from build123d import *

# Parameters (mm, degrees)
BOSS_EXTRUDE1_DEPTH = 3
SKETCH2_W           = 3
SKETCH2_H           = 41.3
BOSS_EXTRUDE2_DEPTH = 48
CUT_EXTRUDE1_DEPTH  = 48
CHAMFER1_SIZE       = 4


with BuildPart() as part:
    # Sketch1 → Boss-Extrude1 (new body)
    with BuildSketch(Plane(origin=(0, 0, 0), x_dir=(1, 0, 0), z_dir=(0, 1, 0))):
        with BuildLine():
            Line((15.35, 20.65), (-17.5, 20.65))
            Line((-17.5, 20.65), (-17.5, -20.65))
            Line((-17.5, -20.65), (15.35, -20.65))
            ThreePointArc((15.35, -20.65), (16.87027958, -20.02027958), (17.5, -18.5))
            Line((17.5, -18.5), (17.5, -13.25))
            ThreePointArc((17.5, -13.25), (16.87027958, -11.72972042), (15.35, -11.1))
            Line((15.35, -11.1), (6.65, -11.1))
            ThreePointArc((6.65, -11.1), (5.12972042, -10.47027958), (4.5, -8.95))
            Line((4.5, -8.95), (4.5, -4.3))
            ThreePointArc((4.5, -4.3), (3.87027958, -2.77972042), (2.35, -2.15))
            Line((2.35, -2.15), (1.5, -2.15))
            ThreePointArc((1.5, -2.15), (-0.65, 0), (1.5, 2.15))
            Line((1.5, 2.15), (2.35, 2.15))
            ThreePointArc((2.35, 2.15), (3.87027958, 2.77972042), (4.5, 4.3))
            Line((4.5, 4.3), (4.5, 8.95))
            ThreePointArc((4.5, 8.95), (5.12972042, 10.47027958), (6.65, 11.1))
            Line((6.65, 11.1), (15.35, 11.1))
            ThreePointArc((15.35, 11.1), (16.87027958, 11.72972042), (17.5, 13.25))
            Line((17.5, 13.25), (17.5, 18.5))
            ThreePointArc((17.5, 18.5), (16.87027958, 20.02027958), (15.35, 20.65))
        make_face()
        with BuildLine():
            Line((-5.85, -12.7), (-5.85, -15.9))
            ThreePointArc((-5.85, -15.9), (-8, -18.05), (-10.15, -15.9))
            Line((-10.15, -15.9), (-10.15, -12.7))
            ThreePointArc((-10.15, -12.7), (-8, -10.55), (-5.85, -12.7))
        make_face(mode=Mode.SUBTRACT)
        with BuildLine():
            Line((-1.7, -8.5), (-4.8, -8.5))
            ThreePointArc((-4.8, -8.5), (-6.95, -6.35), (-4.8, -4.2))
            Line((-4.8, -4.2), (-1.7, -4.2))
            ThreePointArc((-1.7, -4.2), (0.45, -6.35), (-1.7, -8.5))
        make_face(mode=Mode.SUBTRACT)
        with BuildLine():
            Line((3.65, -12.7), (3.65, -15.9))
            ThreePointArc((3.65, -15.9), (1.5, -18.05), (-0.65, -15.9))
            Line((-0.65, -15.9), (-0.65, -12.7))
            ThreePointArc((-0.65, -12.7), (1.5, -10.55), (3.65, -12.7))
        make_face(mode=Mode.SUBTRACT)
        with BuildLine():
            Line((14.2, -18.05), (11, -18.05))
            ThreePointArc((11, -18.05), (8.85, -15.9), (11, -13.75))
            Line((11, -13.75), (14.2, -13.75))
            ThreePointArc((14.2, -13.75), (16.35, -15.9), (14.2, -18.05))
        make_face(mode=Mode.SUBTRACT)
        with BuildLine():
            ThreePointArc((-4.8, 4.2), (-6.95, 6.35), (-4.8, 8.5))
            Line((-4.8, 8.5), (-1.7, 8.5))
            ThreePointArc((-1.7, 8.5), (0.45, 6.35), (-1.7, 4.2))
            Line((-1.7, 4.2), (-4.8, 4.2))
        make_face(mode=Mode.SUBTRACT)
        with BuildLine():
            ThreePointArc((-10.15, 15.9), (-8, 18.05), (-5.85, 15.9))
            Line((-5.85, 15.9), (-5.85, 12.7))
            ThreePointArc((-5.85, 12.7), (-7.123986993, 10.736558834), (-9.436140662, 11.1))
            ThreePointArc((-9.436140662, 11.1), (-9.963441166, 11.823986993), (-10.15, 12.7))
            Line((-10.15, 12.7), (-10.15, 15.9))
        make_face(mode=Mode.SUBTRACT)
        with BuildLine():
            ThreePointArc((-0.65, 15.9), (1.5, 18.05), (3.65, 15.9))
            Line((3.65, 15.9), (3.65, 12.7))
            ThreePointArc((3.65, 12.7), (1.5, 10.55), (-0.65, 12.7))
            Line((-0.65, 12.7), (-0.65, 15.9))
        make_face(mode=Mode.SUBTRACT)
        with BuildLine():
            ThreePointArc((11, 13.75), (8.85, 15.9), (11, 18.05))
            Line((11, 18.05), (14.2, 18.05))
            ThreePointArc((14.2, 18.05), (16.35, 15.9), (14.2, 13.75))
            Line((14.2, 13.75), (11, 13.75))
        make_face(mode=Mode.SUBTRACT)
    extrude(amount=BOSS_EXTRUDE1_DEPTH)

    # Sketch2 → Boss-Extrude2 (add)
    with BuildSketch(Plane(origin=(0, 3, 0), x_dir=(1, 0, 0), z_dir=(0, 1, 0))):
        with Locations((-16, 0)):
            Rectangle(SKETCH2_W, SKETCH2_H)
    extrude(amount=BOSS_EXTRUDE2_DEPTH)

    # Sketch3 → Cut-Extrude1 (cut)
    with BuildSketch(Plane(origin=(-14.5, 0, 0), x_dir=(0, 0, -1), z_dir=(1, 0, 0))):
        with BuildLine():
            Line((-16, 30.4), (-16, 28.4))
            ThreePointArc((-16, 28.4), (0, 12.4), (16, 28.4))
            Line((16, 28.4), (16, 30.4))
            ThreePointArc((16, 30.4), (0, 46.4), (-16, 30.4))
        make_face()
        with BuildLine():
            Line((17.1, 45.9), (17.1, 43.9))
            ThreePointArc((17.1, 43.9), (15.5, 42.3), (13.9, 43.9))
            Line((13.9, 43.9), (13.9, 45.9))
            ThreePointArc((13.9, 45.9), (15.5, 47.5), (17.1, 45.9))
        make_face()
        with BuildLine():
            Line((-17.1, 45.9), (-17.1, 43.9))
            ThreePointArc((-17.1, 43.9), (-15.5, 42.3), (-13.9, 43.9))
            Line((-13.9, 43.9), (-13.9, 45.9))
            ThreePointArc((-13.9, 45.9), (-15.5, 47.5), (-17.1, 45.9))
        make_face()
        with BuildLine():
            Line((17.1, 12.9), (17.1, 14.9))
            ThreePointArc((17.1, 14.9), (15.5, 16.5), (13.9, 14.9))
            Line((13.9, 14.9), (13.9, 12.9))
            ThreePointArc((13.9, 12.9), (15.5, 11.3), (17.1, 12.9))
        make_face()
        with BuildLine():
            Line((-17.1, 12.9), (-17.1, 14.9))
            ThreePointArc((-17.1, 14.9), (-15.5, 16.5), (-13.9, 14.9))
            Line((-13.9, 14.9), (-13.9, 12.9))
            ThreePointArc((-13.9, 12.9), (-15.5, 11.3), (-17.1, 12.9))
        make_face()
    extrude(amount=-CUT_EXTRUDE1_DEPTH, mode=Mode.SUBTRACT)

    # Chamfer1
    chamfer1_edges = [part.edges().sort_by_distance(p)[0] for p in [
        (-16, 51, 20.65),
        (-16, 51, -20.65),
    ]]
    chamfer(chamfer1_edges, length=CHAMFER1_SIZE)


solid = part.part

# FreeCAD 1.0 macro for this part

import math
import FreeCAD as App
import Part
import Sketcher

V = App.Vector


def edges_at(feature, points):
    """Names of the edges that pass closest to the given points."""
    edges = feature.Shape.Edges
    near = lambda p: min(range(len(edges)), key=lambda i: edges[i].distToShape(Part.Vertex(*p))[0])
    return sorted({f"Edge{near(p) + 1}" for p in points})

doc = App.newDocument("Part")
body = doc.addObject("PartDesign::Body", "Body")

# Sketch on XZ plane
sketch1 = body.newObject("Sketcher::SketchObject", "Sketch")
sketch1.AttachmentSupport = (doc.getObject("XZ_Plane"), [""])
sketch1.MapMode = "FlatFace"
sketch1.addGeometry(Part.LineSegment(V(15.35, -20.65, 0), V(-17.5, -20.65, 0)), False)
sketch1.addGeometry(Part.LineSegment(V(-17.5, -20.65, 0), V(-17.5, 20.65, 0)), False)
sketch1.addGeometry(Part.LineSegment(V(-17.5, 20.65, 0), V(15.35, 20.65, 0)), False)
sketch1.addGeometry(Part.ArcOfCircle(Part.Circle(V(15.35, 18.5, 0), V(0, 0, 1), 2.15), math.radians(0), math.radians(90)), False)
sketch1.addGeometry(Part.LineSegment(V(17.5, 18.5, 0), V(17.5, 13.25, 0)), False)
sketch1.addGeometry(Part.ArcOfCircle(Part.Circle(V(15.35, 13.25, 0), V(0, 0, 1), 2.15), math.radians(-90), math.radians(0)), False)
sketch1.addGeometry(Part.LineSegment(V(15.35, 11.1, 0), V(6.65, 11.1, 0)), False)
sketch1.addGeometry(Part.ArcOfCircle(Part.Circle(V(6.65, 8.95, 0), V(0, 0, 1), 2.15), math.radians(90), math.radians(180)), False)
sketch1.addGeometry(Part.LineSegment(V(4.5, 8.95, 0), V(4.5, 4.3, 0)), False)
sketch1.addGeometry(Part.ArcOfCircle(Part.Circle(V(2.35, 4.3, 0), V(0, 0, 1), 2.15), math.radians(-90), math.radians(0)), False)
sketch1.addGeometry(Part.LineSegment(V(2.35, 2.15, 0), V(1.5, 2.15, 0)), False)
sketch1.addGeometry(Part.ArcOfCircle(Part.Circle(V(1.5, 0, 0), V(0, 0, 1), 2.15), math.radians(90), math.radians(270)), False)
sketch1.addGeometry(Part.LineSegment(V(1.5, -2.15, 0), V(2.35, -2.15, 0)), False)
sketch1.addGeometry(Part.ArcOfCircle(Part.Circle(V(2.35, -4.3, 0), V(0, 0, 1), 2.15), math.radians(0), math.radians(90)), False)
sketch1.addGeometry(Part.LineSegment(V(4.5, -4.3, 0), V(4.5, -8.95, 0)), False)
sketch1.addGeometry(Part.ArcOfCircle(Part.Circle(V(6.65, -8.95, 0), V(0, 0, 1), 2.15), math.radians(180), math.radians(270)), False)
sketch1.addGeometry(Part.LineSegment(V(6.65, -11.1, 0), V(15.35, -11.1, 0)), False)
sketch1.addGeometry(Part.ArcOfCircle(Part.Circle(V(15.35, -13.25, 0), V(0, 0, 1), 2.15), math.radians(0), math.radians(90)), False)
sketch1.addGeometry(Part.LineSegment(V(17.5, -13.25, 0), V(17.5, -18.5, 0)), False)
sketch1.addGeometry(Part.ArcOfCircle(Part.Circle(V(15.35, -18.5, 0), V(0, 0, 1), 2.15), math.radians(-90), math.radians(0)), False)
sketch1.addGeometry(Part.ArcOfCircle(Part.Circle(V(-8, 12.7, 0), V(0, 0, 1), 2.15), math.radians(180), math.radians(360)), False)
sketch1.addGeometry(Part.LineSegment(V(-5.85, 12.7, 0), V(-5.85, 15.9, 0)), False)
sketch1.addGeometry(Part.ArcOfCircle(Part.Circle(V(-8, 15.9, 0), V(0, 0, 1), 2.15), math.radians(0), math.radians(180)), False)
sketch1.addGeometry(Part.LineSegment(V(-10.15, 15.9, 0), V(-10.15, 12.7, 0)), False)
sketch1.addGeometry(Part.ArcOfCircle(Part.Circle(V(1.5, 12.7, 0), V(0, 0, 1), 2.15), math.radians(180), math.radians(360)), False)
sketch1.addGeometry(Part.LineSegment(V(3.65, 12.7, 0), V(3.65, 15.9, 0)), False)
sketch1.addGeometry(Part.ArcOfCircle(Part.Circle(V(1.5, 15.9, 0), V(0, 0, 1), 2.15), math.radians(0), math.radians(180)), False)
sketch1.addGeometry(Part.LineSegment(V(-0.65, 15.9, 0), V(-0.65, 12.7, 0)), False)
sketch1.addGeometry(Part.ArcOfCircle(Part.Circle(V(-1.7, 6.35, 0), V(0, 0, 1), 2.15), math.radians(-90), math.radians(90)), False)
sketch1.addGeometry(Part.LineSegment(V(-1.7, 8.5, 0), V(-4.8, 8.5, 0)), False)
sketch1.addGeometry(Part.ArcOfCircle(Part.Circle(V(-4.8, 6.35, 0), V(0, 0, 1), 2.15), math.radians(90), math.radians(270)), False)
sketch1.addGeometry(Part.LineSegment(V(-4.8, 4.2, 0), V(-1.7, 4.2, 0)), False)
sketch1.addGeometry(Part.ArcOfCircle(Part.Circle(V(14.2, 15.9, 0), V(0, 0, 1), 2.15), math.radians(-90), math.radians(90)), False)
sketch1.addGeometry(Part.LineSegment(V(14.2, 18.05, 0), V(11, 18.05, 0)), False)
sketch1.addGeometry(Part.ArcOfCircle(Part.Circle(V(11, 15.9, 0), V(0, 0, 1), 2.15), math.radians(90), math.radians(270)), False)
sketch1.addGeometry(Part.LineSegment(V(11, 13.75, 0), V(14.2, 13.75, 0)), False)
sketch1.addGeometry(Part.LineSegment(V(-1.7, -4.2, 0), V(-4.8, -4.2, 0)), False)
sketch1.addGeometry(Part.ArcOfCircle(Part.Circle(V(-4.8, -6.35, 0), V(0, 0, 1), 2.15), math.radians(90), math.radians(270)), False)
sketch1.addGeometry(Part.LineSegment(V(-4.8, -8.5, 0), V(-1.7, -8.5, 0)), False)
sketch1.addGeometry(Part.ArcOfCircle(Part.Circle(V(-1.7, -6.35, 0), V(0, 0, 1), 2.15), math.radians(-90), math.radians(90)), False)
sketch1.addGeometry(Part.LineSegment(V(-10.15, -12.7, 0), V(-10.15, -15.9, 0)), False)
sketch1.addGeometry(Part.ArcOfCircle(Part.Circle(V(-8, -15.9, 0), V(0, 0, 1), 2.15), math.radians(180), math.radians(360)), False)
sketch1.addGeometry(Part.LineSegment(V(-5.85, -15.9, 0), V(-5.85, -12.7, 0)), False)
sketch1.addGeometry(Part.ArcOfCircle(Part.Circle(V(-8, -12.7, 0), V(0, 0, 1), 2.15), math.radians(0), math.radians(131.910766)), False)
sketch1.addGeometry(Part.ArcOfCircle(Part.Circle(V(-8, -12.7, 0), V(0, 0, 1), 2.15), math.radians(131.910766), math.radians(180)), False)
sketch1.addGeometry(Part.LineSegment(V(-0.65, -12.7, 0), V(-0.65, -15.9, 0)), False)
sketch1.addGeometry(Part.ArcOfCircle(Part.Circle(V(1.5, -15.9, 0), V(0, 0, 1), 2.15), math.radians(180), math.radians(360)), False)
sketch1.addGeometry(Part.LineSegment(V(3.65, -15.9, 0), V(3.65, -12.7, 0)), False)
sketch1.addGeometry(Part.ArcOfCircle(Part.Circle(V(1.5, -12.7, 0), V(0, 0, 1), 2.15), math.radians(0), math.radians(180)), False)
sketch1.addGeometry(Part.LineSegment(V(14.2, -13.75, 0), V(11, -13.75, 0)), False)
sketch1.addGeometry(Part.ArcOfCircle(Part.Circle(V(11, -15.9, 0), V(0, 0, 1), 2.15), math.radians(90), math.radians(270)), False)
sketch1.addGeometry(Part.LineSegment(V(11, -18.05, 0), V(14.2, -18.05, 0)), False)
sketch1.addGeometry(Part.ArcOfCircle(Part.Circle(V(14.2, -15.9, 0), V(0, 0, 1), 2.15), math.radians(-90), math.radians(90)), False)
sketch1.addConstraint(Sketcher.Constraint("Coincident", 0, 2, 1, 1))
sketch1.addConstraint(Sketcher.Constraint("Coincident", 1, 2, 2, 1))
sketch1.addConstraint(Sketcher.Constraint("Tangent", 2, 2, 3, 2))
sketch1.addConstraint(Sketcher.Constraint("Tangent", 3, 1, 4, 1))
sketch1.addConstraint(Sketcher.Constraint("Tangent", 4, 2, 5, 2))
sketch1.addConstraint(Sketcher.Constraint("Tangent", 5, 1, 6, 1))
sketch1.addConstraint(Sketcher.Constraint("Tangent", 6, 2, 7, 1))
sketch1.addConstraint(Sketcher.Constraint("Tangent", 7, 2, 8, 1))
sketch1.addConstraint(Sketcher.Constraint("Tangent", 8, 2, 9, 2))
sketch1.addConstraint(Sketcher.Constraint("Tangent", 9, 1, 10, 1))
sketch1.addConstraint(Sketcher.Constraint("Tangent", 10, 2, 11, 1))
sketch1.addConstraint(Sketcher.Constraint("Tangent", 11, 2, 12, 1))
sketch1.addConstraint(Sketcher.Constraint("Tangent", 12, 2, 13, 2))
sketch1.addConstraint(Sketcher.Constraint("Tangent", 13, 1, 14, 1))
sketch1.addConstraint(Sketcher.Constraint("Tangent", 14, 2, 15, 1))
sketch1.addConstraint(Sketcher.Constraint("Tangent", 15, 2, 16, 1))
sketch1.addConstraint(Sketcher.Constraint("Tangent", 16, 2, 17, 2))
sketch1.addConstraint(Sketcher.Constraint("Tangent", 17, 1, 18, 1))
sketch1.addConstraint(Sketcher.Constraint("Tangent", 18, 2, 19, 2))
sketch1.addConstraint(Sketcher.Constraint("Tangent", 19, 1, 0, 1))
sketch1.addConstraint(Sketcher.Constraint("Tangent", 20, 2, 21, 1))
sketch1.addConstraint(Sketcher.Constraint("Tangent", 21, 2, 22, 1))
sketch1.addConstraint(Sketcher.Constraint("Tangent", 22, 2, 23, 1))
sketch1.addConstraint(Sketcher.Constraint("Tangent", 23, 2, 20, 1))
sketch1.addConstraint(Sketcher.Constraint("Tangent", 24, 2, 25, 1))
sketch1.addConstraint(Sketcher.Constraint("Tangent", 25, 2, 26, 1))
sketch1.addConstraint(Sketcher.Constraint("Tangent", 26, 2, 27, 1))
sketch1.addConstraint(Sketcher.Constraint("Tangent", 27, 2, 24, 1))
sketch1.addConstraint(Sketcher.Constraint("Tangent", 28, 2, 29, 1))
sketch1.addConstraint(Sketcher.Constraint("Tangent", 29, 2, 30, 1))
sketch1.addConstraint(Sketcher.Constraint("Tangent", 30, 2, 31, 1))
sketch1.addConstraint(Sketcher.Constraint("Tangent", 31, 2, 28, 1))
sketch1.addConstraint(Sketcher.Constraint("Tangent", 32, 2, 33, 1))
sketch1.addConstraint(Sketcher.Constraint("Tangent", 33, 2, 34, 1))
sketch1.addConstraint(Sketcher.Constraint("Tangent", 34, 2, 35, 1))
sketch1.addConstraint(Sketcher.Constraint("Tangent", 35, 2, 32, 1))
sketch1.addConstraint(Sketcher.Constraint("Tangent", 36, 2, 37, 1))
sketch1.addConstraint(Sketcher.Constraint("Tangent", 37, 2, 38, 1))
sketch1.addConstraint(Sketcher.Constraint("Tangent", 38, 2, 39, 1))
sketch1.addConstraint(Sketcher.Constraint("Tangent", 39, 2, 36, 1))
sketch1.addConstraint(Sketcher.Constraint("Tangent", 40, 2, 41, 1))
sketch1.addConstraint(Sketcher.Constraint("Tangent", 41, 2, 42, 1))
sketch1.addConstraint(Sketcher.Constraint("Tangent", 42, 2, 43, 1))
sketch1.addConstraint(Sketcher.Constraint("Tangent", 43, 2, 44, 1))
sketch1.addConstraint(Sketcher.Constraint("Tangent", 44, 2, 40, 1))
sketch1.addConstraint(Sketcher.Constraint("Tangent", 45, 2, 46, 1))
sketch1.addConstraint(Sketcher.Constraint("Tangent", 46, 2, 47, 1))
sketch1.addConstraint(Sketcher.Constraint("Tangent", 47, 2, 48, 1))
sketch1.addConstraint(Sketcher.Constraint("Tangent", 48, 2, 45, 1))
sketch1.addConstraint(Sketcher.Constraint("Tangent", 49, 2, 50, 1))
sketch1.addConstraint(Sketcher.Constraint("Tangent", 50, 2, 51, 1))
sketch1.addConstraint(Sketcher.Constraint("Tangent", 51, 2, 52, 1))
sketch1.addConstraint(Sketcher.Constraint("Tangent", 52, 2, 49, 1))
sketch1.addConstraint(Sketcher.Constraint("Horizontal", 0))
sketch1.addConstraint(Sketcher.Constraint("Vertical", 1))
sketch1.addConstraint(Sketcher.Constraint("Horizontal", 2))
sketch1.addConstraint(Sketcher.Constraint("Vertical", 4))
sketch1.addConstraint(Sketcher.Constraint("Horizontal", 6))
sketch1.addConstraint(Sketcher.Constraint("Vertical", 8))
sketch1.addConstraint(Sketcher.Constraint("Horizontal", 10))
sketch1.addConstraint(Sketcher.Constraint("Horizontal", 12))
sketch1.addConstraint(Sketcher.Constraint("Vertical", 14))
sketch1.addConstraint(Sketcher.Constraint("Horizontal", 16))
sketch1.addConstraint(Sketcher.Constraint("Vertical", 18))
sketch1.addConstraint(Sketcher.Constraint("Vertical", 21))
sketch1.addConstraint(Sketcher.Constraint("Vertical", 23))
sketch1.addConstraint(Sketcher.Constraint("Vertical", 25))
sketch1.addConstraint(Sketcher.Constraint("Vertical", 27))
sketch1.addConstraint(Sketcher.Constraint("Horizontal", 29))
sketch1.addConstraint(Sketcher.Constraint("Horizontal", 31))
sketch1.addConstraint(Sketcher.Constraint("Horizontal", 33))
sketch1.addConstraint(Sketcher.Constraint("Horizontal", 35))
sketch1.addConstraint(Sketcher.Constraint("Horizontal", 36))
sketch1.addConstraint(Sketcher.Constraint("Horizontal", 38))
sketch1.addConstraint(Sketcher.Constraint("Vertical", 40))
sketch1.addConstraint(Sketcher.Constraint("Vertical", 42))
sketch1.addConstraint(Sketcher.Constraint("Vertical", 45))
sketch1.addConstraint(Sketcher.Constraint("Vertical", 47))
sketch1.addConstraint(Sketcher.Constraint("Horizontal", 49))
sketch1.addConstraint(Sketcher.Constraint("Horizontal", 51))
sketch1.addConstraint(Sketcher.Constraint("Equal", 3, 5))
sketch1.addConstraint(Sketcher.Constraint("Equal", 5, 7))
sketch1.addConstraint(Sketcher.Constraint("Equal", 7, 9))
sketch1.addConstraint(Sketcher.Constraint("Equal", 9, 11))
sketch1.addConstraint(Sketcher.Constraint("Equal", 11, 13))
sketch1.addConstraint(Sketcher.Constraint("Equal", 13, 15))
sketch1.addConstraint(Sketcher.Constraint("Equal", 15, 17))
sketch1.addConstraint(Sketcher.Constraint("Equal", 17, 19))
sketch1.addConstraint(Sketcher.Constraint("Equal", 19, 20))
sketch1.addConstraint(Sketcher.Constraint("Equal", 22, 24))
sketch1.addConstraint(Sketcher.Constraint("Equal", 26, 28))
sketch1.addConstraint(Sketcher.Constraint("Equal", 30, 32))
sketch1.addConstraint(Sketcher.Constraint("Equal", 34, 37))
sketch1.addConstraint(Sketcher.Constraint("Equal", 39, 41))
sketch1.addConstraint(Sketcher.Constraint("Equal", 41, 43))
sketch1.addConstraint(Sketcher.Constraint("Equal", 44, 46))
sketch1.addConstraint(Sketcher.Constraint("Equal", 48, 50))
sketch1.addConstraint(Sketcher.Constraint("Symmetric", 9, 3, 13, 3, -1))
sketch1.addConstraint(Sketcher.Constraint("Symmetric", 5, 3, 17, 3, -1))
sketch1.addConstraint(Sketcher.Constraint("Symmetric", 30, 3, 37, 3, -1))
sketch1.addConstraint(Sketcher.Constraint("Symmetric", 22, 3, 41, 3, -1))
sketch1.addConstraint(Sketcher.Constraint("Symmetric", 26, 3, 46, 3, -1))
sketch1.addConstraint(Sketcher.Constraint("Symmetric", 34, 3, 50, 3, -1))
sketch1.addConstraint(Sketcher.Constraint("Horizontal", 20, 3, 24, 3))
sketch1.addConstraint(Sketcher.Constraint("Horizontal", 22, 3, 26, 3))
sketch1.addConstraint(Sketcher.Constraint("Horizontal", 26, 3, 32, 3))
sketch1.addConstraint(Sketcher.Constraint("Horizontal", 44, 3, 48, 3))
sketch1.addConstraint(Sketcher.Constraint("Horizontal", 16, 2, 43, 2))
sketch1.addConstraint(Sketcher.Constraint("Vertical", 11, 3, 24, 3))
sketch1.addConstraint(Sketcher.Constraint("Vertical", 28, 3, 39, 3))
sketch1.addConstraint(Sketcher.Constraint("Vertical", 32, 3, 52, 3))
sketch1.addConstraint(Sketcher.Constraint("Equal", 4, 18))
sketch1.addConstraint(Sketcher.Constraint("Equal", 51, 21))
sketch1.addConstraint(Sketcher.Constraint("Equal", 27, 40))
sketch1.addConstraint(Sketcher.Constraint("Radius", 3, 2.15))
sketch1.addConstraint(Sketcher.Constraint("DistanceX", 6, 2, 6, 1, 8.7))
sketch1.addConstraint(Sketcher.Constraint("DistanceX", 29, 2, 29, 1, 3.1))
sketch1.addConstraint(Sketcher.Constraint("DistanceX", 33, 2, 33, 1, 3.2))
sketch1.addConstraint(Sketcher.Constraint("DistanceY", 1, 1, 1, 2, 41.3))
sketch1.addConstraint(Sketcher.Constraint("DistanceX", 20, 3, -1, 1, 8.0))
sketch1.addConstraint(Sketcher.Constraint("DistanceX", -1, 1, 34, 3, 11.0))
sketch1.addConstraint(Sketcher.Constraint("DistanceX", 0, 2, 0, 1, 32.85))
sketch1.addConstraint(Sketcher.Constraint("DistanceX", 10, 2, 10, 1, 0.85))
sketch1.addConstraint(Sketcher.Constraint("DistanceY", 4, 2, 4, 1, 5.25))
sketch1.addConstraint(Sketcher.Constraint("DistanceX", -1, 1, 11, 3, 1.5))
sketch1.addConstraint(Sketcher.Constraint("DistanceY", -1, 1, 20, 3, 12.7))
sketch1.addConstraint(Sketcher.Constraint("DistanceX", 28, 3, -1, 1, 1.7))
sketch1.addConstraint(Sketcher.Constraint("DistanceY", -1, 1, 28, 2, 8.5))
pad1 = body.newObject("PartDesign::Pad", "Pad")
pad1.Profile = sketch1
pad1.Length = 3
pad1.Reversed = True

# Sketch on XZ plane
sketch2 = body.newObject("Sketcher::SketchObject", "Sketch001")
sketch2.AttachmentSupport = (doc.getObject("XZ_Plane"), [""])
sketch2.MapMode = "FlatFace"
sketch2.AttachmentOffset = App.Placement(V(0, 0, -3), App.Rotation())
sketch2.addGeometry(Part.LineSegment(V(-17.5, -20.65, 0), V(-17.5, 20.65, 0)), False)
sketch2.addGeometry(Part.LineSegment(V(-17.5, 20.65, 0), V(-14.5, 20.65, 0)), False)
sketch2.addGeometry(Part.LineSegment(V(-14.5, 20.65, 0), V(-14.5, -20.65, 0)), False)
sketch2.addGeometry(Part.LineSegment(V(-14.5, -20.65, 0), V(-17.5, -20.65, 0)), False)
sketch2.addConstraint(Sketcher.Constraint("Coincident", 0, 2, 1, 1))
sketch2.addConstraint(Sketcher.Constraint("Coincident", 1, 2, 2, 1))
sketch2.addConstraint(Sketcher.Constraint("Coincident", 2, 2, 3, 1))
sketch2.addConstraint(Sketcher.Constraint("Coincident", 3, 2, 0, 1))
sketch2.addConstraint(Sketcher.Constraint("Vertical", 0))
sketch2.addConstraint(Sketcher.Constraint("Horizontal", 1))
sketch2.addConstraint(Sketcher.Constraint("Vertical", 2))
sketch2.addConstraint(Sketcher.Constraint("Horizontal", 3))
sketch2.addConstraint(Sketcher.Constraint("DistanceX", 1, 1, 1, 2, 3.0))
sketch2.addConstraint(Sketcher.Constraint("DistanceY", 0, 1, 0, 2, 41.3))
sketch2.addConstraint(Sketcher.Constraint("DistanceX", 0, 2, -1, 1, 17.5))
sketch2.addConstraint(Sketcher.Constraint("DistanceY", -1, 1, 0, 2, 20.65))
pad2 = body.newObject("PartDesign::Pad", "Pad001")
pad2.Profile = sketch2
pad2.Length = 48
pad2.Reversed = True

# Sketch on YZ plane
sketch3 = body.newObject("Sketcher::SketchObject", "Sketch002")
sketch3.AttachmentSupport = (doc.getObject("YZ_Plane"), [""])
sketch3.MapMode = "FlatFace"
sketch3.AttachmentOffset = App.Placement(V(0, 0, -14.5), App.Rotation())
sketch3.addGeometry(Part.LineSegment(V(30.4, 16, 0), V(28.4, 16, 0)), False)
sketch3.addGeometry(Part.ArcOfCircle(Part.Circle(V(28.4, 0, 0), V(0, 0, 1), 16), math.radians(90), math.radians(270)), False)
sketch3.addGeometry(Part.LineSegment(V(28.4, -16, 0), V(30.4, -16, 0)), False)
sketch3.addGeometry(Part.ArcOfCircle(Part.Circle(V(30.4, 0, 0), V(0, 0, 1), 16), math.radians(-90), math.radians(90)), False)
sketch3.addGeometry(Part.LineSegment(V(43.9, -17.1, 0), V(45.9, -17.1, 0)), False)
sketch3.addGeometry(Part.ArcOfCircle(Part.Circle(V(45.9, -15.5, 0), V(0, 0, 1), 1.6), math.radians(-90), math.radians(90)), False)
sketch3.addGeometry(Part.LineSegment(V(45.9, -13.9, 0), V(43.9, -13.9, 0)), False)
sketch3.addGeometry(Part.ArcOfCircle(Part.Circle(V(43.9, -15.5, 0), V(0, 0, 1), 1.6), math.radians(90), math.radians(270)), False)
sketch3.addGeometry(Part.LineSegment(V(45.9, 17.1, 0), V(43.9, 17.1, 0)), False)
sketch3.addGeometry(Part.ArcOfCircle(Part.Circle(V(43.9, 15.5, 0), V(0, 0, 1), 1.6), math.radians(90), math.radians(270)), False)
sketch3.addGeometry(Part.LineSegment(V(43.9, 13.9, 0), V(45.9, 13.9, 0)), False)
sketch3.addGeometry(Part.ArcOfCircle(Part.Circle(V(45.9, 15.5, 0), V(0, 0, 1), 1.6), math.radians(-90), math.radians(90)), False)
sketch3.addGeometry(Part.LineSegment(V(12.9, -17.1, 0), V(14.9, -17.1, 0)), False)
sketch3.addGeometry(Part.ArcOfCircle(Part.Circle(V(14.9, -15.5, 0), V(0, 0, 1), 1.6), math.radians(-90), math.radians(90)), False)
sketch3.addGeometry(Part.LineSegment(V(14.9, -13.9, 0), V(12.9, -13.9, 0)), False)
sketch3.addGeometry(Part.ArcOfCircle(Part.Circle(V(12.9, -15.5, 0), V(0, 0, 1), 1.6), math.radians(90), math.radians(270)), False)
sketch3.addGeometry(Part.LineSegment(V(14.9, 17.1, 0), V(12.9, 17.1, 0)), False)
sketch3.addGeometry(Part.ArcOfCircle(Part.Circle(V(12.9, 15.5, 0), V(0, 0, 1), 1.6), math.radians(90), math.radians(270)), False)
sketch3.addGeometry(Part.LineSegment(V(12.9, 13.9, 0), V(14.9, 13.9, 0)), False)
sketch3.addGeometry(Part.ArcOfCircle(Part.Circle(V(14.9, 15.5, 0), V(0, 0, 1), 1.6), math.radians(-90), math.radians(90)), False)
sketch3.addConstraint(Sketcher.Constraint("Tangent", 0, 2, 1, 1))
sketch3.addConstraint(Sketcher.Constraint("Tangent", 1, 2, 2, 1))
sketch3.addConstraint(Sketcher.Constraint("Tangent", 2, 2, 3, 1))
sketch3.addConstraint(Sketcher.Constraint("Tangent", 3, 2, 0, 1))
sketch3.addConstraint(Sketcher.Constraint("Tangent", 4, 2, 5, 1))
sketch3.addConstraint(Sketcher.Constraint("Tangent", 5, 2, 6, 1))
sketch3.addConstraint(Sketcher.Constraint("Tangent", 6, 2, 7, 1))
sketch3.addConstraint(Sketcher.Constraint("Tangent", 7, 2, 4, 1))
sketch3.addConstraint(Sketcher.Constraint("Tangent", 8, 2, 9, 1))
sketch3.addConstraint(Sketcher.Constraint("Tangent", 9, 2, 10, 1))
sketch3.addConstraint(Sketcher.Constraint("Tangent", 10, 2, 11, 1))
sketch3.addConstraint(Sketcher.Constraint("Tangent", 11, 2, 8, 1))
sketch3.addConstraint(Sketcher.Constraint("Tangent", 12, 2, 13, 1))
sketch3.addConstraint(Sketcher.Constraint("Tangent", 13, 2, 14, 1))
sketch3.addConstraint(Sketcher.Constraint("Tangent", 14, 2, 15, 1))
sketch3.addConstraint(Sketcher.Constraint("Tangent", 15, 2, 12, 1))
sketch3.addConstraint(Sketcher.Constraint("Tangent", 16, 2, 17, 1))
sketch3.addConstraint(Sketcher.Constraint("Tangent", 17, 2, 18, 1))
sketch3.addConstraint(Sketcher.Constraint("Tangent", 18, 2, 19, 1))
sketch3.addConstraint(Sketcher.Constraint("Tangent", 19, 2, 16, 1))
sketch3.addConstraint(Sketcher.Constraint("Horizontal", 0))
sketch3.addConstraint(Sketcher.Constraint("Horizontal", 2))
sketch3.addConstraint(Sketcher.Constraint("Horizontal", 4))
sketch3.addConstraint(Sketcher.Constraint("Horizontal", 6))
sketch3.addConstraint(Sketcher.Constraint("Horizontal", 8))
sketch3.addConstraint(Sketcher.Constraint("Horizontal", 10))
sketch3.addConstraint(Sketcher.Constraint("Horizontal", 12))
sketch3.addConstraint(Sketcher.Constraint("Horizontal", 14))
sketch3.addConstraint(Sketcher.Constraint("Horizontal", 16))
sketch3.addConstraint(Sketcher.Constraint("Horizontal", 18))
sketch3.addConstraint(Sketcher.Constraint("Equal", 7, 9))
sketch3.addConstraint(Sketcher.Constraint("Equal", 11, 13))
sketch3.addConstraint(Sketcher.Constraint("Equal", 15, 17))
sketch3.addConstraint(Sketcher.Constraint("Symmetric", 7, 3, 9, 3, -1))
sketch3.addConstraint(Sketcher.Constraint("Symmetric", 15, 3, 17, 3, -1))
sketch3.addConstraint(Sketcher.Constraint("PointOnObject", 1, 3, -1))
sketch3.addConstraint(Sketcher.Constraint("Horizontal", 7, 3, 13, 3))
sketch3.addConstraint(Sketcher.Constraint("Vertical", 5, 3, 11, 3))
sketch3.addConstraint(Sketcher.Constraint("Vertical", 13, 3, 19, 3))
sketch3.addConstraint(Sketcher.Constraint("Equal", 2, 4))
sketch3.addConstraint(Sketcher.Constraint("Equal", 10, 12))
sketch3.addConstraint(Sketcher.Constraint("Radius", 1, 16.0))
sketch3.addConstraint(Sketcher.Constraint("Radius", 5, 1.6))
sketch3.addConstraint(Sketcher.Constraint("DistanceX", 0, 2, 0, 1, 2.0))
sketch3.addConstraint(Sketcher.Constraint("DistanceY", 7, 3, 9, 3, 31.0))
sketch3.addConstraint(Sketcher.Constraint("DistanceX", 13, 3, 7, 3, 29.0))
sketch3.addConstraint(Sketcher.Constraint("DistanceX", -1, 1, 1, 3, 28.4))
sketch3.addConstraint(Sketcher.Constraint("DistanceX", -1, 1, 5, 3, 45.9))
pocket1 = body.newObject("PartDesign::Pocket", "Pocket")
pocket1.Profile = sketch3
pocket1.Length = 48
doc.recompute()

chamfer = body.newObject("PartDesign::Chamfer", "Chamfer")
chamfer.Base = (pocket1, edges_at(pocket1, [(-16, 51, 20.65), (-16, 51, -20.65)]))
chamfer.Size = 4

doc.recompute()
